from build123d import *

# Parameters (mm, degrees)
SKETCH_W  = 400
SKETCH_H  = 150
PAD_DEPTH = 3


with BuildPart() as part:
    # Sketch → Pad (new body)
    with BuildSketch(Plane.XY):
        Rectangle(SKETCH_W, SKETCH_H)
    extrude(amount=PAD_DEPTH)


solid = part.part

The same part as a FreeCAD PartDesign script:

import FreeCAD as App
import Part
import Sketcher
from FreeCAD import Vector


def add_polygon(sketch, points):
    """Adds a closed chain of lines whose ends are joined by coincident constraints."""
    first, n = sketch.GeometryCount, len(points)
    for a, b in zip(points, points[1:] + points[:1]):
        sketch.addGeometry(Part.LineSegment(App.Vector(*a, 0), App.Vector(*b, 0)), False)
    for i in range(n):
        sketch.addConstraint(Sketcher.Constraint("Coincident", first + i, 2, first + (i + 1) % n, 1))

doc = App.newDocument("Part")
body = doc.addObject("PartDesign::Body", "Body")

# Sketch on XY plane
sketch1 = body.newObject("Sketcher::SketchObject", "Sketch")
sketch1.AttachmentSupport = (doc.getObject("XY_Plane"), [""])
sketch1.MapMode = "FlatFace"
add_polygon(sketch1, [(-200, 75), (-200, -75), (200, -75), (200, 75)])  # lines 0-3
sketch1.addConstraint([
    Sketcher.Constraint("Vertical", 0),
    Sketcher.Constraint("Horizontal", 1),
    Sketcher.Constraint("Vertical", 2),
    Sketcher.Constraint("Horizontal", 3),
    Sketcher.Constraint("Symmetric", 0, 2, 2, 2, -1, 1),
    Sketcher.Constraint("DistanceX", 1, 1, 1, 2, 400.0),
    Sketcher.Constraint("DistanceY", 0, 2, 0, 1, 150.0),
])
pad1 = body.newObject("PartDesign::Pad", "Pad")
pad1.Profile = sketch1
pad1.Length = 3

doc.recompute()
